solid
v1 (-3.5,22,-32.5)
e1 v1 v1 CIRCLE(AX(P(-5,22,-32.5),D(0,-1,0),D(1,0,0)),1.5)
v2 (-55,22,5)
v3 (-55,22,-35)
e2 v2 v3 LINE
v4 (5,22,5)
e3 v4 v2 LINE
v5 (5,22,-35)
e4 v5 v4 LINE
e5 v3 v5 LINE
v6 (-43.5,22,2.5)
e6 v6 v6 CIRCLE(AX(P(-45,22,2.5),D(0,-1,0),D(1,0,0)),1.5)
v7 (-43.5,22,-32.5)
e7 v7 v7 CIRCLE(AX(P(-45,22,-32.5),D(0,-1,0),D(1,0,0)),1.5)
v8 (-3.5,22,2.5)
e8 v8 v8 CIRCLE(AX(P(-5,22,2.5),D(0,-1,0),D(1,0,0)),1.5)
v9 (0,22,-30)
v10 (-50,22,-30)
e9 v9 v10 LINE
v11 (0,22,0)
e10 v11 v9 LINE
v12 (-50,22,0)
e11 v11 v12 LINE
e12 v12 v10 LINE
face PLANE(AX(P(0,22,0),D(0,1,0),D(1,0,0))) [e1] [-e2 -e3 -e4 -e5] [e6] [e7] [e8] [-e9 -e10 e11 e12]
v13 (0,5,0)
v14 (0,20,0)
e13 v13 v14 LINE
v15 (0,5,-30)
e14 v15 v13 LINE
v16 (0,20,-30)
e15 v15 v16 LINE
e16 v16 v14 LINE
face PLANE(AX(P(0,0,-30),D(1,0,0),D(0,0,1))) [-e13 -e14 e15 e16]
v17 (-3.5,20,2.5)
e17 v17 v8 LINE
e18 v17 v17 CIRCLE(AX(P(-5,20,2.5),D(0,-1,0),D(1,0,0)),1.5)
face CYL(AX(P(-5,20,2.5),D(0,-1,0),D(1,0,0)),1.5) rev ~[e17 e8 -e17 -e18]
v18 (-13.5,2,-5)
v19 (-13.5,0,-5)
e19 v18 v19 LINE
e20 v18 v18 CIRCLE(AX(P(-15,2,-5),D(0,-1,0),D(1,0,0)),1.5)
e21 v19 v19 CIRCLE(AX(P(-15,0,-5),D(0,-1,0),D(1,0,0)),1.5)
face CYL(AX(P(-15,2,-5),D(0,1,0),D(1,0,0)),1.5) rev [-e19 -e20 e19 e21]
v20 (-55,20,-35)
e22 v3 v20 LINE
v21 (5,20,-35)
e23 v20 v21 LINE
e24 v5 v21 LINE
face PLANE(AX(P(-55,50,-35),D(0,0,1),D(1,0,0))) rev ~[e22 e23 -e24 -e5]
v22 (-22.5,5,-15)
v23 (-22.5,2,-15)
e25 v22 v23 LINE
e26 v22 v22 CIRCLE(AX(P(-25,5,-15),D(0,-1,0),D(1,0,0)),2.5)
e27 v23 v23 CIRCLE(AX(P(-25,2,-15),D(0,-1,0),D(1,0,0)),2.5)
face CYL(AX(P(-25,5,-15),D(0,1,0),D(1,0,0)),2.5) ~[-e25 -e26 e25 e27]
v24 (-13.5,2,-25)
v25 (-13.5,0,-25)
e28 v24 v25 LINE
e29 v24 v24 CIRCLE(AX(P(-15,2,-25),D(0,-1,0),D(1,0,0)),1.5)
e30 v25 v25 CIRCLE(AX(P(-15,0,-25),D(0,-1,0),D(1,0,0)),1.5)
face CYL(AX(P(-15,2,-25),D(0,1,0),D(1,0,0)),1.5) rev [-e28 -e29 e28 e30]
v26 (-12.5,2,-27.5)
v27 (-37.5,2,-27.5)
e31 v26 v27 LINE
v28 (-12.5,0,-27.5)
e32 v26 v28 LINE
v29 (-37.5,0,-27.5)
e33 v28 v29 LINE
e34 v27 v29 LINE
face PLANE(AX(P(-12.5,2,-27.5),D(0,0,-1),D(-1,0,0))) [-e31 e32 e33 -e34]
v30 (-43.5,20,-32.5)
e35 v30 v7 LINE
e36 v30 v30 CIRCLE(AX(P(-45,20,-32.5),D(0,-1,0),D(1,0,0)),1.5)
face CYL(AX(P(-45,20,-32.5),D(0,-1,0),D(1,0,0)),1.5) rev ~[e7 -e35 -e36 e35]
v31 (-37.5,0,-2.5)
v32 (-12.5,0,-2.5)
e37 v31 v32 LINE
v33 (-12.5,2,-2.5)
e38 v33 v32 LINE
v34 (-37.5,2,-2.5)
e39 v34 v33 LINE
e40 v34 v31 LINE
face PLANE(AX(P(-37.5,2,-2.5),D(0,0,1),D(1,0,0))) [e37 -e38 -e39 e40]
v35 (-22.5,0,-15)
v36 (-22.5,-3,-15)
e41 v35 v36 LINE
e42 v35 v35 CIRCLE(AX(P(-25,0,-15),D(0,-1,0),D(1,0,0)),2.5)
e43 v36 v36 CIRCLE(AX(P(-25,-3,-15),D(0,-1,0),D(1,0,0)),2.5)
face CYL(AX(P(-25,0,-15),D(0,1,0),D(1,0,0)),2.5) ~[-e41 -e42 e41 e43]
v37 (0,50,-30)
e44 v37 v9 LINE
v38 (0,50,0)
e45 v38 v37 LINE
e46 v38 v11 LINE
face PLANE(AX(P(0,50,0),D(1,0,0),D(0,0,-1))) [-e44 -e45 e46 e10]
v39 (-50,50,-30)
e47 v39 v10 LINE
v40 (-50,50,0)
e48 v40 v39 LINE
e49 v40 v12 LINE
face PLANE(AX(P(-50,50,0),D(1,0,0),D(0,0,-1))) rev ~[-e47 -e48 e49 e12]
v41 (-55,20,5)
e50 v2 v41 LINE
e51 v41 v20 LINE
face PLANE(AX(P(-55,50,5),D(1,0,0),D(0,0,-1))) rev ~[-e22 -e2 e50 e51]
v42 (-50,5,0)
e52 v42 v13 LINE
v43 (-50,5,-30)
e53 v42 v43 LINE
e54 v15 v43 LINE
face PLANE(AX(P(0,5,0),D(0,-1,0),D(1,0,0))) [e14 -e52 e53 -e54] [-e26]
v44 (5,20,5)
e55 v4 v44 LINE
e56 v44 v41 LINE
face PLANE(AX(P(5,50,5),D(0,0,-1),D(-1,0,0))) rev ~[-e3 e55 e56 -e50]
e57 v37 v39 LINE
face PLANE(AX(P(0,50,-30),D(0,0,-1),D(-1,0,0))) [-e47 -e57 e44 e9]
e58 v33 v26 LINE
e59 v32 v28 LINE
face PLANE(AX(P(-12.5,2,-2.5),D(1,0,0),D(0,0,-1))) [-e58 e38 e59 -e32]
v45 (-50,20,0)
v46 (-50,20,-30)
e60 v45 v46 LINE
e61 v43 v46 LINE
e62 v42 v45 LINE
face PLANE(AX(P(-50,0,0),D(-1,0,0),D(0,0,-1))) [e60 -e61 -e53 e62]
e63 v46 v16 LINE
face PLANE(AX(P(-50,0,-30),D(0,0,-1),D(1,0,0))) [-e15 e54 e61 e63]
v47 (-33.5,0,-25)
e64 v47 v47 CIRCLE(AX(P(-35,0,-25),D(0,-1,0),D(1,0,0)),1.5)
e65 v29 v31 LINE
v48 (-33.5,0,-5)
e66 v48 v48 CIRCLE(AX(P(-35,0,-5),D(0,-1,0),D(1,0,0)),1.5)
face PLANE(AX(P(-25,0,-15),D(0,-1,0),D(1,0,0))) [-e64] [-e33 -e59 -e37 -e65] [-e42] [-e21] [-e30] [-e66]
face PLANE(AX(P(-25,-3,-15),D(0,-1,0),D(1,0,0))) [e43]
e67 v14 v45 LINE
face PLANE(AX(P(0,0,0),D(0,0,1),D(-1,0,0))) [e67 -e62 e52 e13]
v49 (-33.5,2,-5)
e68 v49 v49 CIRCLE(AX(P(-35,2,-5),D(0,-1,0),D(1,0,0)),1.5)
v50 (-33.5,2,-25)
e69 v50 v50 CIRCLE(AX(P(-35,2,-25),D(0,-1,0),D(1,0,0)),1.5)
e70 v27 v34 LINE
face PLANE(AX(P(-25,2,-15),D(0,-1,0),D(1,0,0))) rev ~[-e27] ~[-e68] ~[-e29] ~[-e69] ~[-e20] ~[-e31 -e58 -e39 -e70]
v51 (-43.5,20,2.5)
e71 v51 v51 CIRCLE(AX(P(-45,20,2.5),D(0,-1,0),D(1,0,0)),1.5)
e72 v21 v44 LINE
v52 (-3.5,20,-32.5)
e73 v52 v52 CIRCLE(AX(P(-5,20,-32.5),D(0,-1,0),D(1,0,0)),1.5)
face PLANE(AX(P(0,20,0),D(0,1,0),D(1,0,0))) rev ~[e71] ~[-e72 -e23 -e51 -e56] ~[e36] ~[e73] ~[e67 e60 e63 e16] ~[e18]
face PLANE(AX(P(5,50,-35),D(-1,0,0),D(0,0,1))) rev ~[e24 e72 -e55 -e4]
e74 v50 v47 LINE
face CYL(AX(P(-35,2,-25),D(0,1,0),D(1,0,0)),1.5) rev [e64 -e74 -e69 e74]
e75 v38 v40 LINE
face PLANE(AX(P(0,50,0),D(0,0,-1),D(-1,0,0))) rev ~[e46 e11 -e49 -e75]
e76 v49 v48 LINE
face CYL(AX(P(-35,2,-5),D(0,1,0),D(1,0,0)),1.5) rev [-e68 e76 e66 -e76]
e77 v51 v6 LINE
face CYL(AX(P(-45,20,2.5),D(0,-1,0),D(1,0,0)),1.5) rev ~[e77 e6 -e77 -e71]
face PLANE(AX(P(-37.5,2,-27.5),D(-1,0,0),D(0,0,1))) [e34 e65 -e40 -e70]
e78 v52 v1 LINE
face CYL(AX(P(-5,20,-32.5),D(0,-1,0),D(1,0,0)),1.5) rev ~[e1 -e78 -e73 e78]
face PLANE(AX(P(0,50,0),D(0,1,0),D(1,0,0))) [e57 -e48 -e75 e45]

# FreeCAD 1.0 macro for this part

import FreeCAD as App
import Part
import Sketcher

V = App.Vector

doc = App.newDocument("Part")
body = doc.addObject("PartDesign::Body", "Body")

# Sketch on XZ plane
sketch1 = doc.addObject("Sketcher::SketchObject", "Sketch")
body.addObject(sketch1)
sketch1.AttachmentSupport = (doc.XZ_Plane, [""])
sketch1.MapMode = "FlatFace"
sketch1.addGeometry([
    Part.LineSegment(V(-50, 0, 0), V(0, 0, 0)),
    Part.LineSegment(V(0, 0, 0), V(0, -30, 0)),
    Part.LineSegment(V(0, -30, 0), V(-50, -30, 0)),
    Part.LineSegment(V(-50, -30, 0), V(-50, 0, 0)),
], False)
sketch1.addConstraint([
    Sketcher.Constraint("Coincident", 0, 2, 1, 1),
    Sketcher.Constraint("Coincident", 1, 2, 2, 1),
    Sketcher.Constraint("Coincident", 2, 2, 3, 1),
    Sketcher.Constraint("Coincident", 3, 2, 0, 1),
    Sketcher.Constraint("Horizontal", 0),
    Sketcher.Constraint("Vertical", 1),
    Sketcher.Constraint("Horizontal", 2),
    Sketcher.Constraint("Vertical", 3),
    Sketcher.Constraint("Coincident", 0, 2, -1, 1),
    Sketcher.Constraint("DistanceX", 0, 1, 0, 2, 50.0),
    Sketcher.Constraint("DistanceY", 1, 2, 1, 1, 30.0),
])
pad1 = doc.addObject("PartDesign::Pad", "Pad")
body.addObject(pad1)
pad1.Profile = sketch1
pad1.Length = 50
pad1.Reversed = True

# Sketch on XZ plane
sketch2 = doc.addObject("Sketcher::SketchObject", "Sketch001")
body.addObject(sketch2)
sketch2.AttachmentSupport = (doc.XZ_Plane, [""])
sketch2.MapMode = "FlatFace"
sketch2.AttachmentOffset = App.Placement(V(0, 0, -50), App.Rotation())
sketch2.addGeometry([
    Part.LineSegment(V(-55, 5, 0), V(5, 5, 0)),
    Part.LineSegment(V(5, 5, 0), V(5, -35, 0)),
    Part.LineSegment(V(5, -35, 0), V(-55, -35, 0)),
    Part.LineSegment(V(-55, -35, 0), V(-55, 5, 0)),
], False)
sketch2.addConstraint([
    Sketcher.Constraint("Coincident", 0, 2, 1, 1),
    Sketcher.Constraint("Coincident", 1, 2, 2, 1),
    Sketcher.Constraint("Coincident", 2, 2, 3, 1),
    Sketcher.Constraint("Coincident", 3, 2, 0, 1),
    Sketcher.Constraint("Horizontal", 0),
    Sketcher.Constraint("Vertical", 1),
    Sketcher.Constraint("Horizontal", 2),
    Sketcher.Constraint("Vertical", 3),
    Sketcher.Constraint("DistanceX", 0, 1, 0, 2, 60.0),
    Sketcher.Constraint("DistanceY", 1, 2, 1, 1, 40.0),
    Sketcher.Constraint("DistanceX", -1, 1, 0, 2, 5.0),
    Sketcher.Constraint("DistanceY", -1, 1, 0, 2, 5.0),
])
pad2 = doc.addObject("PartDesign::Pad", "Pad001")
body.addObject(pad2)
pad2.Profile = sketch2
pad2.Length = 30

# Sketch on XZ plane
sketch3 = doc.addObject("Sketcher::SketchObject", "Sketch002")
body.addObject(sketch3)
sketch3.AttachmentSupport = (doc.XZ_Plane, [""])
sketch3.MapMode = "FlatFace"
sketch3.AttachmentOffset = App.Placement(V(0, 0, -50), App.Rotation())
sketch3.addGeometry([
    Part.LineSegment(V(-55, 5, 0), V(5, 5, 0)),  # 0
    Part.LineSegment(V(5, 5, 0), V(5, -35, 0)),  # 1
    Part.LineSegment(V(5, -35, 0), V(-55, -35, 0)),  # 2
    Part.LineSegment(V(-55, -35, 0), V(-55, 5, 0)),  # 3
    Part.LineSegment(V(0, -30, 0), V(0, 0, 0)),  # 4
    Part.LineSegment(V(0, 0, 0), V(-50, 0, 0)),  # 5
    Part.LineSegment(V(-50, 0, 0), V(-50, -30, 0)),  # 6
    Part.LineSegment(V(-50, -30, 0), V(0, -30, 0)),  # 7
], False)
sketch3.addConstraint([
    Sketcher.Constraint("Coincident", 0, 2, 1, 1),
    Sketcher.Constraint("Coincident", 1, 2, 2, 1),
    Sketcher.Constraint("Coincident", 2, 2, 3, 1),
    Sketcher.Constraint("Coincident", 3, 2, 0, 1),
    Sketcher.Constraint("Coincident", 4, 2, 5, 1),
    Sketcher.Constraint("Coincident", 5, 2, 6, 1),
    Sketcher.Constraint("Coincident", 6, 2, 7, 1),
    Sketcher.Constraint("Coincident", 7, 2, 4, 1),
    Sketcher.Constraint("Horizontal", 0),
    Sketcher.Constraint("Vertical", 1),
    Sketcher.Constraint("Horizontal", 2),
    Sketcher.Constraint("Vertical", 3),
    Sketcher.Constraint("Vertical", 4),
    Sketcher.Constraint("Horizontal", 5),
    Sketcher.Constraint("Vertical", 6),
    Sketcher.Constraint("Horizontal", 7),
    Sketcher.Constraint("Coincident", 4, 2, -1, 1),
    Sketcher.Constraint("DistanceX", 5, 2, 5, 1, 50.0),
    Sketcher.Constraint("DistanceY", 4, 1, 4, 2, 30.0),
    Sketcher.Constraint("DistanceX", 0, 1, 0, 2, 60.0),
    Sketcher.Constraint("DistanceY", 1, 2, 1, 1, 40.0),
    Sketcher.Constraint("DistanceX", -1, 1, 0, 2, 5.0),
    Sketcher.Constraint("DistanceY", -1, 1, 0, 2, 5.0),
])
pocket1 = doc.addObject("PartDesign::Pocket", "Pocket")
body.addObject(pocket1)
pocket1.Profile = sketch3
pocket1.Length = 28
pocket1.Reversed = True

# Sketch on XZ plane
sketch4 = doc.addObject("Sketcher::SketchObject", "Sketch003")
body.addObject(sketch4)
sketch4.AttachmentSupport = (doc.XZ_Plane, [""])
sketch4.MapMode = "FlatFace"
sketch4.addGeometry([
    Part.LineSegment(V(0, 0, 0), V(-50, 0, 0)),
    Part.LineSegment(V(-50, 0, 0), V(-50, -30, 0)),
    Part.LineSegment(V(-50, -30, 0), V(0, -30, 0)),
    Part.LineSegment(V(0, -30, 0), V(0, 0, 0)),
], False)
sketch4.addConstraint([
    Sketcher.Constraint("Coincident", 0, 2, 1, 1),
    Sketcher.Constraint("Coincident", 1, 2, 2, 1),
    Sketcher.Constraint("Coincident", 2, 2, 3, 1),
    Sketcher.Constraint("Coincident", 3, 2, 0, 1),
    Sketcher.Constraint("Horizontal", 0),
    Sketcher.Constraint("Vertical", 1),
    Sketcher.Constraint("Horizontal", 2),
    Sketcher.Constraint("Vertical", 3),
    Sketcher.Constraint("Coincident", 3, 2, -1, 1),
    Sketcher.Constraint("DistanceX", 0, 2, 0, 1, 50.0),
    Sketcher.Constraint("DistanceY", 1, 2, 1, 1, 30.0),
])
pocket2 = doc.addObject("PartDesign::Pocket", "Pocket001")
body.addObject(pocket2)
pocket2.Profile = sketch4
pocket2.Length = 5

# Sketch on XZ plane
sketch5 = doc.addObject("Sketcher::SketchObject", "Sketch004")
body.addObject(sketch5)
sketch5.AttachmentSupport = (doc.XZ_Plane, [""])
sketch5.MapMode = "FlatFace"
sketch5.AttachmentOffset = App.Placement(V(0, 0, -5), App.Rotation())
sketch5.addGeometry(Part.Circle(V(-25, -15, 0), V(0, 0, 1), 2.5), False)
sketch5.addConstraint([
    Sketcher.Constraint("Diameter", 0, 5.0),
    Sketcher.Constraint("DistanceX", 0, 3, -1, 1, 25.0),
    Sketcher.Constraint("DistanceY", 0, 3, -1, 1, 15.0),
])
pad3 = doc.addObject("PartDesign::Pad", "Pad002")
body.addObject(pad3)
pad3.Profile = sketch5
pad3.Length = 3

# Sketch on XZ plane
sketch6 = doc.addObject("Sketcher::SketchObject", "Sketch005")
body.addObject(sketch6)
sketch6.AttachmentSupport = (doc.XZ_Plane, [""])
sketch6.MapMode = "FlatFace"
sketch6.AttachmentOffset = App.Placement(V(0, 0, -2), App.Rotation())
sketch6.addGeometry([
    Part.LineSegment(V(-12.5, -2.5, 0), V(-37.5, -2.5, 0)),  # 0
    Part.LineSegment(V(-37.5, -2.5, 0), V(-37.5, -27.5, 0)),  # 1
    Part.LineSegment(V(-37.5, -27.5, 0), V(-12.5, -27.5, 0)),  # 2
    Part.LineSegment(V(-12.5, -27.5, 0), V(-12.5, -2.5, 0)),  # 3
    Part.Circle(V(-35, -25, 0), V(0, 0, 1), 1.5),  # 4
    Part.Circle(V(-15, -25, 0), V(0, 0, 1), 1.5),  # 5
    Part.Circle(V(-35, -5, 0), V(0, 0, 1), 1.5),  # 6
    Part.Circle(V(-15, -5, 0), V(0, 0, 1), 1.5),  # 7
], False)
sketch6.addConstraint([
    Sketcher.Constraint("Coincident", 0, 2, 1, 1),
    Sketcher.Constraint("Coincident", 1, 2, 2, 1),
    Sketcher.Constraint("Coincident", 2, 2, 3, 1),
    Sketcher.Constraint("Coincident", 3, 2, 0, 1),
    Sketcher.Constraint("Horizontal", 0),
    Sketcher.Constraint("Vertical", 1),
    Sketcher.Constraint("Horizontal", 2),
    Sketcher.Constraint("Vertical", 3),
    Sketcher.Constraint("Equal", 4, 5),
    Sketcher.Constraint("Equal", 5, 6),
    Sketcher.Constraint("Equal", 6, 7),
    Sketcher.Constraint("Horizontal", 4, 3, 5, 3),
    Sketcher.Constraint("Horizontal", 6, 3, 7, 3),
    Sketcher.Constraint("Vertical", 4, 3, 6, 3),
    Sketcher.Constraint("Vertical", 5, 3, 7, 3),
    Sketcher.Constraint("Equal", 2, 1),
    Sketcher.Constraint("Diameter", 4, 3.0),
    Sketcher.Constraint("DistanceX", 0, 2, 0, 1, 25.0),
    Sketcher.Constraint("DistanceY", 4, 3, -1, 1, 25.0),
    Sketcher.Constraint("DistanceX", 4, 3, -1, 1, 35.0),
    Sketcher.Constraint("DistanceX", 5, 3, -1, 1, 15.0),
    Sketcher.Constraint("DistanceY", 6, 3, -1, 1, 5.0),
    Sketcher.Constraint("DistanceX", 0, 2, -1, 1, 37.5),
    Sketcher.Constraint("DistanceY", 0, 2, -1, 1, 2.5),
])
pad4 = doc.addObject("PartDesign::Pad", "Pad003")
body.addObject(pad4)
pad4.Profile = sketch6
pad4.Length = 2

# Sketch on XZ plane
sketch7 = doc.addObject("Sketcher::SketchObject", "Sketch006")
body.addObject(sketch7)
sketch7.AttachmentSupport = (doc.XZ_Plane, [""])
sketch7.MapMode = "FlatFace"
sketch7.addGeometry(Part.Circle(V(-25, -15, 0), V(0, 0, 1), 2.5), False)
sketch7.addConstraint([
    Sketcher.Constraint("Diameter", 0, 5.0),
    Sketcher.Constraint("DistanceX", 0, 3, -1, 1, 25.0),
    Sketcher.Constraint("DistanceY", 0, 3, -1, 1, 15.0),
])
pad5 = doc.addObject("PartDesign::Pad", "Pad004")
body.addObject(pad5)
pad5.Profile = sketch7
pad5.Length = 3

# Sketch on XZ plane
sketch8 = doc.addObject("Sketcher::SketchObject", "Sketch007")
body.addObject(sketch8)
sketch8.AttachmentSupport = (doc.XZ_Plane, [""])
sketch8.MapMode = "FlatFace"
sketch8.AttachmentOffset = App.Placement(V(0, 0, -20), App.Rotation())
sketch8.addGeometry([
    Part.Circle(V(-5, -32.5, 0), V(0, 0, 1), 1.5),
    Part.Circle(V(-5, 2.5, 0), V(0, 0, 1), 1.5),
    Part.Circle(V(-45, 2.5, 0), V(0, 0, 1), 1.5),
    Part.Circle(V(-45, -32.5, 0), V(0, 0, 1), 1.5),
], False)
sketch8.addConstraint([
    Sketcher.Constraint("Equal", 0, 1),
    Sketcher.Constraint("Equal", 1, 2),
    Sketcher.Constraint("Equal", 2, 3),
    Sketcher.Constraint("Horizontal", 1, 3, 2, 3),
    Sketcher.Constraint("Horizontal", 0, 3, 3, 3),
    Sketcher.Constraint("Vertical", 0, 3, 1, 3),
    Sketcher.Constraint("Vertical", 2, 3, 3, 3),
    Sketcher.Constraint("Diameter", 0, 3.0),
    Sketcher.Constraint("DistanceX", 0, 3, -1, 1, 5.0),
    Sketcher.Constraint("DistanceX", 2, 3, -1, 1, 45.0),
    Sketcher.Constraint("DistanceY", 0, 3, 1, 3, 35.0),
    Sketcher.Constraint("DistanceY", 0, 3, -1, 1, 32.5),
])
pocket3 = doc.addObject("PartDesign::Pocket", "Pocket002")
body.addObject(pocket3)
pocket3.Profile = sketch8
pocket3.Length = 3

doc.recompute()
